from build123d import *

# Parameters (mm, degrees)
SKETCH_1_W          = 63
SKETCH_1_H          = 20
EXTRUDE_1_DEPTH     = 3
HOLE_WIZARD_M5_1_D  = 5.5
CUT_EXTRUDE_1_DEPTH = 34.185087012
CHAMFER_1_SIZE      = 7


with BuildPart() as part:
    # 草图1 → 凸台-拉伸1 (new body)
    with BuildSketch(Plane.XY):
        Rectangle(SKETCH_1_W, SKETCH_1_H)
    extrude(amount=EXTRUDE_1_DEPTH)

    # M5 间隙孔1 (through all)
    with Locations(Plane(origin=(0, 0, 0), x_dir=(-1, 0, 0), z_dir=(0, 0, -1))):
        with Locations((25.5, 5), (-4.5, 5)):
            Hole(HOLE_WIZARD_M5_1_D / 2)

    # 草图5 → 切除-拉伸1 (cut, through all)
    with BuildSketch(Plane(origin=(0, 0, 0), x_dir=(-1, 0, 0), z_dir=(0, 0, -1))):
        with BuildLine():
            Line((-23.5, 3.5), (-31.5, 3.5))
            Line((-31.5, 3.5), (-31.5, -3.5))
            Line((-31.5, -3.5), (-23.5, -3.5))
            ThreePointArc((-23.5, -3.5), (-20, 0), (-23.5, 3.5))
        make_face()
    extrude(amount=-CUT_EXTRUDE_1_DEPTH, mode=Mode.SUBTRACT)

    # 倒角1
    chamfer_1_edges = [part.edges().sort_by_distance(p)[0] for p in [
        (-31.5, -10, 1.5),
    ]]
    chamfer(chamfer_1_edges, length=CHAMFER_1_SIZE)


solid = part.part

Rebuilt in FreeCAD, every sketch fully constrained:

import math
import FreeCAD as App
import Part
import Sketcher
Q = App.Units.Quantity


def edges_at(feature, points):
    """Names of the edges that pass closest to the given points."""
    edges = feature.Shape.Edges
    near = lambda p: min(range(len(edges)), key=lambda i: edges[i].distToShape(Part.Vertex(*p))[0])
    return sorted({f"Edge{near(p) + 1}" for p in points})


def add_polygon(sketch, points):
    """Adds a closed chain of lines whose ends are joined by coincident constraints."""
    first, n = sketch.GeometryCount, len(points)
    for a, b in zip(points, points[1:] + points[:1]):
        sketch.addGeometry(Part.LineSegment(App.Vector(*a, 0), App.Vector(*b, 0)), False)
    for i in range(n):
        sketch.addConstraint(Sketcher.Constraint("Coincident", first + i, 2, first + (i + 1) % n, 1))

doc = App.newDocument("Part")
body = doc.addObject("PartDesign::Body", "Body")

sketch1 = body.newObject("Sketcher::SketchObject", "Sketch")
sketch1.AttachmentSupport = (doc.getObject("XY_Plane"), [""])
sketch1.MapMode = "FlatFace"
add_polygon(sketch1, [(-31.5, 10), (-31.5, -10), (31.5, -10), (31.5, 10)])
sketch1.addConstraint(Sketcher.Constraint("Vertical", 0))
sketch1.addConstraint(Sketcher.Constraint("Horizontal", 1))
sketch1.addConstraint(Sketcher.Constraint("Vertical", 2))
sketch1.addConstraint(Sketcher.Constraint("Horizontal", 3))
sketch1.addConstraint(Sketcher.Constraint("Symmetric", 0, 2, 2, 2, -1, 1))
sketch1.addConstraint(Sketcher.Constraint("DistanceX", 1, 1, 1, 2, Q("63 mm")))
sketch1.addConstraint(Sketcher.Constraint("DistanceY", 0, 2, 0, 1, Q("20 mm")))
pad1 = body.newObject("PartDesign::Pad", "Pad")
pad1.Profile = sketch1
pad1.Length = 3

sketch2 = body.newObject("Sketcher::SketchObject", "Sketch001")
sketch2.AttachmentSupport = (doc.getObject("XY_Plane"), [""])
sketch2.MapMode = "FlatFace"
sketch2.addGeometry(Part.Circle(App.Vector(-25.5, 5, 0), App.Vector(0, 0, 1), 2.75), False)
sketch2.addGeometry(Part.Circle(App.Vector(4.5, 5, 0), App.Vector(0, 0, 1), 2.75), False)
sketch2.addConstraint(Sketcher.Constraint("Equal", 0, 1))
sketch2.addConstraint(Sketcher.Constraint("Horizontal", 0, 3, 1, 3))
sketch2.addConstraint(Sketcher.Constraint("Diameter", 0, Q("5.5 mm")))
sketch2.addConstraint(Sketcher.Constraint("DistanceY", -1, 1, 0, 3, Q("5 mm")))
sketch2.addConstraint(Sketcher.Constraint("DistanceX", 0, 3, 1, 3, Q("30 mm")))
sketch2.addConstraint(Sketcher.Constraint("DistanceX", 0, 3, -1, 1, Q("25.5 mm")))
doc.recompute()
hole = body.newObject("PartDesign::Hole", "Hole")
hole.Profile = sketch2
hole.ThreadType = "None"
hole.Diameter = 5.5
hole.DepthType = "ThroughAll"
hole.Reversed = True

sketch3 = body.newObject("Sketcher::SketchObject", "Sketch002")
sketch3.AttachmentSupport = (doc.getObject("XY_Plane"), [""])
sketch3.MapMode = "FlatFace"
sketch3.addGeometry(Part.LineSegment(App.Vector(23.5, 3.5, 0), App.Vector(31.5, 3.5, 0)), False)
sketch3.addGeometry(Part.LineSegment(App.Vector(31.5, 3.5, 0), App.Vector(31.5, -3.5, 0)), False)
sketch3.addGeometry(Part.LineSegment(App.Vector(31.5, -3.5, 0), App.Vector(23.5, -3.5, 0)), False)
sketch3.addGeometry(Part.ArcOfCircle(Part.Circle(App.Vector(23.5, 0, 0), App.Vector(0, 0, 1), 3.5), math.radians(90), math.radians(270)), False)
sketch3.addConstraint(Sketcher.Constraint("Coincident", 0, 2, 1, 1))
sketch3.addConstraint(Sketcher.Constraint("Coincident", 1, 2, 2, 1))
sketch3.addConstraint(Sketcher.Constraint("Tangent", 2, 2, 3, 2))
sketch3.addConstraint(Sketcher.Constraint("Tangent", 3, 1, 0, 1))
sketch3.addConstraint(Sketcher.Constraint("Horizontal", 0))
sketch3.addConstraint(Sketcher.Constraint("Vertical", 1))
sketch3.addConstraint(Sketcher.Constraint("Horizontal", 2))
sketch3.addConstraint(Sketcher.Constraint("PointOnObject", 3, 3, -1))
sketch3.addConstraint(Sketcher.Constraint("Radius", 3, Q("3.5 mm")))
sketch3.addConstraint(Sketcher.Constraint("DistanceX", 0, 1, 0, 2, Q("8 mm")))
sketch3.addConstraint(Sketcher.Constraint("DistanceX", -1, 1, 3, 3, Q("23.5 mm")))
pocket1 = body.newObject("PartDesign::Pocket", "Pocket")
pocket1.Profile = sketch3
pocket1.Type = "ThroughAll"
pocket1.Reversed = True
doc.recompute()

chamfer = body.newObject("PartDesign::Chamfer", "Chamfer")
chamfer.Base = (pocket1, edges_at(pocket1, [(-31.5, -10, 1.5)]))
chamfer.Size = 7

doc.recompute()
